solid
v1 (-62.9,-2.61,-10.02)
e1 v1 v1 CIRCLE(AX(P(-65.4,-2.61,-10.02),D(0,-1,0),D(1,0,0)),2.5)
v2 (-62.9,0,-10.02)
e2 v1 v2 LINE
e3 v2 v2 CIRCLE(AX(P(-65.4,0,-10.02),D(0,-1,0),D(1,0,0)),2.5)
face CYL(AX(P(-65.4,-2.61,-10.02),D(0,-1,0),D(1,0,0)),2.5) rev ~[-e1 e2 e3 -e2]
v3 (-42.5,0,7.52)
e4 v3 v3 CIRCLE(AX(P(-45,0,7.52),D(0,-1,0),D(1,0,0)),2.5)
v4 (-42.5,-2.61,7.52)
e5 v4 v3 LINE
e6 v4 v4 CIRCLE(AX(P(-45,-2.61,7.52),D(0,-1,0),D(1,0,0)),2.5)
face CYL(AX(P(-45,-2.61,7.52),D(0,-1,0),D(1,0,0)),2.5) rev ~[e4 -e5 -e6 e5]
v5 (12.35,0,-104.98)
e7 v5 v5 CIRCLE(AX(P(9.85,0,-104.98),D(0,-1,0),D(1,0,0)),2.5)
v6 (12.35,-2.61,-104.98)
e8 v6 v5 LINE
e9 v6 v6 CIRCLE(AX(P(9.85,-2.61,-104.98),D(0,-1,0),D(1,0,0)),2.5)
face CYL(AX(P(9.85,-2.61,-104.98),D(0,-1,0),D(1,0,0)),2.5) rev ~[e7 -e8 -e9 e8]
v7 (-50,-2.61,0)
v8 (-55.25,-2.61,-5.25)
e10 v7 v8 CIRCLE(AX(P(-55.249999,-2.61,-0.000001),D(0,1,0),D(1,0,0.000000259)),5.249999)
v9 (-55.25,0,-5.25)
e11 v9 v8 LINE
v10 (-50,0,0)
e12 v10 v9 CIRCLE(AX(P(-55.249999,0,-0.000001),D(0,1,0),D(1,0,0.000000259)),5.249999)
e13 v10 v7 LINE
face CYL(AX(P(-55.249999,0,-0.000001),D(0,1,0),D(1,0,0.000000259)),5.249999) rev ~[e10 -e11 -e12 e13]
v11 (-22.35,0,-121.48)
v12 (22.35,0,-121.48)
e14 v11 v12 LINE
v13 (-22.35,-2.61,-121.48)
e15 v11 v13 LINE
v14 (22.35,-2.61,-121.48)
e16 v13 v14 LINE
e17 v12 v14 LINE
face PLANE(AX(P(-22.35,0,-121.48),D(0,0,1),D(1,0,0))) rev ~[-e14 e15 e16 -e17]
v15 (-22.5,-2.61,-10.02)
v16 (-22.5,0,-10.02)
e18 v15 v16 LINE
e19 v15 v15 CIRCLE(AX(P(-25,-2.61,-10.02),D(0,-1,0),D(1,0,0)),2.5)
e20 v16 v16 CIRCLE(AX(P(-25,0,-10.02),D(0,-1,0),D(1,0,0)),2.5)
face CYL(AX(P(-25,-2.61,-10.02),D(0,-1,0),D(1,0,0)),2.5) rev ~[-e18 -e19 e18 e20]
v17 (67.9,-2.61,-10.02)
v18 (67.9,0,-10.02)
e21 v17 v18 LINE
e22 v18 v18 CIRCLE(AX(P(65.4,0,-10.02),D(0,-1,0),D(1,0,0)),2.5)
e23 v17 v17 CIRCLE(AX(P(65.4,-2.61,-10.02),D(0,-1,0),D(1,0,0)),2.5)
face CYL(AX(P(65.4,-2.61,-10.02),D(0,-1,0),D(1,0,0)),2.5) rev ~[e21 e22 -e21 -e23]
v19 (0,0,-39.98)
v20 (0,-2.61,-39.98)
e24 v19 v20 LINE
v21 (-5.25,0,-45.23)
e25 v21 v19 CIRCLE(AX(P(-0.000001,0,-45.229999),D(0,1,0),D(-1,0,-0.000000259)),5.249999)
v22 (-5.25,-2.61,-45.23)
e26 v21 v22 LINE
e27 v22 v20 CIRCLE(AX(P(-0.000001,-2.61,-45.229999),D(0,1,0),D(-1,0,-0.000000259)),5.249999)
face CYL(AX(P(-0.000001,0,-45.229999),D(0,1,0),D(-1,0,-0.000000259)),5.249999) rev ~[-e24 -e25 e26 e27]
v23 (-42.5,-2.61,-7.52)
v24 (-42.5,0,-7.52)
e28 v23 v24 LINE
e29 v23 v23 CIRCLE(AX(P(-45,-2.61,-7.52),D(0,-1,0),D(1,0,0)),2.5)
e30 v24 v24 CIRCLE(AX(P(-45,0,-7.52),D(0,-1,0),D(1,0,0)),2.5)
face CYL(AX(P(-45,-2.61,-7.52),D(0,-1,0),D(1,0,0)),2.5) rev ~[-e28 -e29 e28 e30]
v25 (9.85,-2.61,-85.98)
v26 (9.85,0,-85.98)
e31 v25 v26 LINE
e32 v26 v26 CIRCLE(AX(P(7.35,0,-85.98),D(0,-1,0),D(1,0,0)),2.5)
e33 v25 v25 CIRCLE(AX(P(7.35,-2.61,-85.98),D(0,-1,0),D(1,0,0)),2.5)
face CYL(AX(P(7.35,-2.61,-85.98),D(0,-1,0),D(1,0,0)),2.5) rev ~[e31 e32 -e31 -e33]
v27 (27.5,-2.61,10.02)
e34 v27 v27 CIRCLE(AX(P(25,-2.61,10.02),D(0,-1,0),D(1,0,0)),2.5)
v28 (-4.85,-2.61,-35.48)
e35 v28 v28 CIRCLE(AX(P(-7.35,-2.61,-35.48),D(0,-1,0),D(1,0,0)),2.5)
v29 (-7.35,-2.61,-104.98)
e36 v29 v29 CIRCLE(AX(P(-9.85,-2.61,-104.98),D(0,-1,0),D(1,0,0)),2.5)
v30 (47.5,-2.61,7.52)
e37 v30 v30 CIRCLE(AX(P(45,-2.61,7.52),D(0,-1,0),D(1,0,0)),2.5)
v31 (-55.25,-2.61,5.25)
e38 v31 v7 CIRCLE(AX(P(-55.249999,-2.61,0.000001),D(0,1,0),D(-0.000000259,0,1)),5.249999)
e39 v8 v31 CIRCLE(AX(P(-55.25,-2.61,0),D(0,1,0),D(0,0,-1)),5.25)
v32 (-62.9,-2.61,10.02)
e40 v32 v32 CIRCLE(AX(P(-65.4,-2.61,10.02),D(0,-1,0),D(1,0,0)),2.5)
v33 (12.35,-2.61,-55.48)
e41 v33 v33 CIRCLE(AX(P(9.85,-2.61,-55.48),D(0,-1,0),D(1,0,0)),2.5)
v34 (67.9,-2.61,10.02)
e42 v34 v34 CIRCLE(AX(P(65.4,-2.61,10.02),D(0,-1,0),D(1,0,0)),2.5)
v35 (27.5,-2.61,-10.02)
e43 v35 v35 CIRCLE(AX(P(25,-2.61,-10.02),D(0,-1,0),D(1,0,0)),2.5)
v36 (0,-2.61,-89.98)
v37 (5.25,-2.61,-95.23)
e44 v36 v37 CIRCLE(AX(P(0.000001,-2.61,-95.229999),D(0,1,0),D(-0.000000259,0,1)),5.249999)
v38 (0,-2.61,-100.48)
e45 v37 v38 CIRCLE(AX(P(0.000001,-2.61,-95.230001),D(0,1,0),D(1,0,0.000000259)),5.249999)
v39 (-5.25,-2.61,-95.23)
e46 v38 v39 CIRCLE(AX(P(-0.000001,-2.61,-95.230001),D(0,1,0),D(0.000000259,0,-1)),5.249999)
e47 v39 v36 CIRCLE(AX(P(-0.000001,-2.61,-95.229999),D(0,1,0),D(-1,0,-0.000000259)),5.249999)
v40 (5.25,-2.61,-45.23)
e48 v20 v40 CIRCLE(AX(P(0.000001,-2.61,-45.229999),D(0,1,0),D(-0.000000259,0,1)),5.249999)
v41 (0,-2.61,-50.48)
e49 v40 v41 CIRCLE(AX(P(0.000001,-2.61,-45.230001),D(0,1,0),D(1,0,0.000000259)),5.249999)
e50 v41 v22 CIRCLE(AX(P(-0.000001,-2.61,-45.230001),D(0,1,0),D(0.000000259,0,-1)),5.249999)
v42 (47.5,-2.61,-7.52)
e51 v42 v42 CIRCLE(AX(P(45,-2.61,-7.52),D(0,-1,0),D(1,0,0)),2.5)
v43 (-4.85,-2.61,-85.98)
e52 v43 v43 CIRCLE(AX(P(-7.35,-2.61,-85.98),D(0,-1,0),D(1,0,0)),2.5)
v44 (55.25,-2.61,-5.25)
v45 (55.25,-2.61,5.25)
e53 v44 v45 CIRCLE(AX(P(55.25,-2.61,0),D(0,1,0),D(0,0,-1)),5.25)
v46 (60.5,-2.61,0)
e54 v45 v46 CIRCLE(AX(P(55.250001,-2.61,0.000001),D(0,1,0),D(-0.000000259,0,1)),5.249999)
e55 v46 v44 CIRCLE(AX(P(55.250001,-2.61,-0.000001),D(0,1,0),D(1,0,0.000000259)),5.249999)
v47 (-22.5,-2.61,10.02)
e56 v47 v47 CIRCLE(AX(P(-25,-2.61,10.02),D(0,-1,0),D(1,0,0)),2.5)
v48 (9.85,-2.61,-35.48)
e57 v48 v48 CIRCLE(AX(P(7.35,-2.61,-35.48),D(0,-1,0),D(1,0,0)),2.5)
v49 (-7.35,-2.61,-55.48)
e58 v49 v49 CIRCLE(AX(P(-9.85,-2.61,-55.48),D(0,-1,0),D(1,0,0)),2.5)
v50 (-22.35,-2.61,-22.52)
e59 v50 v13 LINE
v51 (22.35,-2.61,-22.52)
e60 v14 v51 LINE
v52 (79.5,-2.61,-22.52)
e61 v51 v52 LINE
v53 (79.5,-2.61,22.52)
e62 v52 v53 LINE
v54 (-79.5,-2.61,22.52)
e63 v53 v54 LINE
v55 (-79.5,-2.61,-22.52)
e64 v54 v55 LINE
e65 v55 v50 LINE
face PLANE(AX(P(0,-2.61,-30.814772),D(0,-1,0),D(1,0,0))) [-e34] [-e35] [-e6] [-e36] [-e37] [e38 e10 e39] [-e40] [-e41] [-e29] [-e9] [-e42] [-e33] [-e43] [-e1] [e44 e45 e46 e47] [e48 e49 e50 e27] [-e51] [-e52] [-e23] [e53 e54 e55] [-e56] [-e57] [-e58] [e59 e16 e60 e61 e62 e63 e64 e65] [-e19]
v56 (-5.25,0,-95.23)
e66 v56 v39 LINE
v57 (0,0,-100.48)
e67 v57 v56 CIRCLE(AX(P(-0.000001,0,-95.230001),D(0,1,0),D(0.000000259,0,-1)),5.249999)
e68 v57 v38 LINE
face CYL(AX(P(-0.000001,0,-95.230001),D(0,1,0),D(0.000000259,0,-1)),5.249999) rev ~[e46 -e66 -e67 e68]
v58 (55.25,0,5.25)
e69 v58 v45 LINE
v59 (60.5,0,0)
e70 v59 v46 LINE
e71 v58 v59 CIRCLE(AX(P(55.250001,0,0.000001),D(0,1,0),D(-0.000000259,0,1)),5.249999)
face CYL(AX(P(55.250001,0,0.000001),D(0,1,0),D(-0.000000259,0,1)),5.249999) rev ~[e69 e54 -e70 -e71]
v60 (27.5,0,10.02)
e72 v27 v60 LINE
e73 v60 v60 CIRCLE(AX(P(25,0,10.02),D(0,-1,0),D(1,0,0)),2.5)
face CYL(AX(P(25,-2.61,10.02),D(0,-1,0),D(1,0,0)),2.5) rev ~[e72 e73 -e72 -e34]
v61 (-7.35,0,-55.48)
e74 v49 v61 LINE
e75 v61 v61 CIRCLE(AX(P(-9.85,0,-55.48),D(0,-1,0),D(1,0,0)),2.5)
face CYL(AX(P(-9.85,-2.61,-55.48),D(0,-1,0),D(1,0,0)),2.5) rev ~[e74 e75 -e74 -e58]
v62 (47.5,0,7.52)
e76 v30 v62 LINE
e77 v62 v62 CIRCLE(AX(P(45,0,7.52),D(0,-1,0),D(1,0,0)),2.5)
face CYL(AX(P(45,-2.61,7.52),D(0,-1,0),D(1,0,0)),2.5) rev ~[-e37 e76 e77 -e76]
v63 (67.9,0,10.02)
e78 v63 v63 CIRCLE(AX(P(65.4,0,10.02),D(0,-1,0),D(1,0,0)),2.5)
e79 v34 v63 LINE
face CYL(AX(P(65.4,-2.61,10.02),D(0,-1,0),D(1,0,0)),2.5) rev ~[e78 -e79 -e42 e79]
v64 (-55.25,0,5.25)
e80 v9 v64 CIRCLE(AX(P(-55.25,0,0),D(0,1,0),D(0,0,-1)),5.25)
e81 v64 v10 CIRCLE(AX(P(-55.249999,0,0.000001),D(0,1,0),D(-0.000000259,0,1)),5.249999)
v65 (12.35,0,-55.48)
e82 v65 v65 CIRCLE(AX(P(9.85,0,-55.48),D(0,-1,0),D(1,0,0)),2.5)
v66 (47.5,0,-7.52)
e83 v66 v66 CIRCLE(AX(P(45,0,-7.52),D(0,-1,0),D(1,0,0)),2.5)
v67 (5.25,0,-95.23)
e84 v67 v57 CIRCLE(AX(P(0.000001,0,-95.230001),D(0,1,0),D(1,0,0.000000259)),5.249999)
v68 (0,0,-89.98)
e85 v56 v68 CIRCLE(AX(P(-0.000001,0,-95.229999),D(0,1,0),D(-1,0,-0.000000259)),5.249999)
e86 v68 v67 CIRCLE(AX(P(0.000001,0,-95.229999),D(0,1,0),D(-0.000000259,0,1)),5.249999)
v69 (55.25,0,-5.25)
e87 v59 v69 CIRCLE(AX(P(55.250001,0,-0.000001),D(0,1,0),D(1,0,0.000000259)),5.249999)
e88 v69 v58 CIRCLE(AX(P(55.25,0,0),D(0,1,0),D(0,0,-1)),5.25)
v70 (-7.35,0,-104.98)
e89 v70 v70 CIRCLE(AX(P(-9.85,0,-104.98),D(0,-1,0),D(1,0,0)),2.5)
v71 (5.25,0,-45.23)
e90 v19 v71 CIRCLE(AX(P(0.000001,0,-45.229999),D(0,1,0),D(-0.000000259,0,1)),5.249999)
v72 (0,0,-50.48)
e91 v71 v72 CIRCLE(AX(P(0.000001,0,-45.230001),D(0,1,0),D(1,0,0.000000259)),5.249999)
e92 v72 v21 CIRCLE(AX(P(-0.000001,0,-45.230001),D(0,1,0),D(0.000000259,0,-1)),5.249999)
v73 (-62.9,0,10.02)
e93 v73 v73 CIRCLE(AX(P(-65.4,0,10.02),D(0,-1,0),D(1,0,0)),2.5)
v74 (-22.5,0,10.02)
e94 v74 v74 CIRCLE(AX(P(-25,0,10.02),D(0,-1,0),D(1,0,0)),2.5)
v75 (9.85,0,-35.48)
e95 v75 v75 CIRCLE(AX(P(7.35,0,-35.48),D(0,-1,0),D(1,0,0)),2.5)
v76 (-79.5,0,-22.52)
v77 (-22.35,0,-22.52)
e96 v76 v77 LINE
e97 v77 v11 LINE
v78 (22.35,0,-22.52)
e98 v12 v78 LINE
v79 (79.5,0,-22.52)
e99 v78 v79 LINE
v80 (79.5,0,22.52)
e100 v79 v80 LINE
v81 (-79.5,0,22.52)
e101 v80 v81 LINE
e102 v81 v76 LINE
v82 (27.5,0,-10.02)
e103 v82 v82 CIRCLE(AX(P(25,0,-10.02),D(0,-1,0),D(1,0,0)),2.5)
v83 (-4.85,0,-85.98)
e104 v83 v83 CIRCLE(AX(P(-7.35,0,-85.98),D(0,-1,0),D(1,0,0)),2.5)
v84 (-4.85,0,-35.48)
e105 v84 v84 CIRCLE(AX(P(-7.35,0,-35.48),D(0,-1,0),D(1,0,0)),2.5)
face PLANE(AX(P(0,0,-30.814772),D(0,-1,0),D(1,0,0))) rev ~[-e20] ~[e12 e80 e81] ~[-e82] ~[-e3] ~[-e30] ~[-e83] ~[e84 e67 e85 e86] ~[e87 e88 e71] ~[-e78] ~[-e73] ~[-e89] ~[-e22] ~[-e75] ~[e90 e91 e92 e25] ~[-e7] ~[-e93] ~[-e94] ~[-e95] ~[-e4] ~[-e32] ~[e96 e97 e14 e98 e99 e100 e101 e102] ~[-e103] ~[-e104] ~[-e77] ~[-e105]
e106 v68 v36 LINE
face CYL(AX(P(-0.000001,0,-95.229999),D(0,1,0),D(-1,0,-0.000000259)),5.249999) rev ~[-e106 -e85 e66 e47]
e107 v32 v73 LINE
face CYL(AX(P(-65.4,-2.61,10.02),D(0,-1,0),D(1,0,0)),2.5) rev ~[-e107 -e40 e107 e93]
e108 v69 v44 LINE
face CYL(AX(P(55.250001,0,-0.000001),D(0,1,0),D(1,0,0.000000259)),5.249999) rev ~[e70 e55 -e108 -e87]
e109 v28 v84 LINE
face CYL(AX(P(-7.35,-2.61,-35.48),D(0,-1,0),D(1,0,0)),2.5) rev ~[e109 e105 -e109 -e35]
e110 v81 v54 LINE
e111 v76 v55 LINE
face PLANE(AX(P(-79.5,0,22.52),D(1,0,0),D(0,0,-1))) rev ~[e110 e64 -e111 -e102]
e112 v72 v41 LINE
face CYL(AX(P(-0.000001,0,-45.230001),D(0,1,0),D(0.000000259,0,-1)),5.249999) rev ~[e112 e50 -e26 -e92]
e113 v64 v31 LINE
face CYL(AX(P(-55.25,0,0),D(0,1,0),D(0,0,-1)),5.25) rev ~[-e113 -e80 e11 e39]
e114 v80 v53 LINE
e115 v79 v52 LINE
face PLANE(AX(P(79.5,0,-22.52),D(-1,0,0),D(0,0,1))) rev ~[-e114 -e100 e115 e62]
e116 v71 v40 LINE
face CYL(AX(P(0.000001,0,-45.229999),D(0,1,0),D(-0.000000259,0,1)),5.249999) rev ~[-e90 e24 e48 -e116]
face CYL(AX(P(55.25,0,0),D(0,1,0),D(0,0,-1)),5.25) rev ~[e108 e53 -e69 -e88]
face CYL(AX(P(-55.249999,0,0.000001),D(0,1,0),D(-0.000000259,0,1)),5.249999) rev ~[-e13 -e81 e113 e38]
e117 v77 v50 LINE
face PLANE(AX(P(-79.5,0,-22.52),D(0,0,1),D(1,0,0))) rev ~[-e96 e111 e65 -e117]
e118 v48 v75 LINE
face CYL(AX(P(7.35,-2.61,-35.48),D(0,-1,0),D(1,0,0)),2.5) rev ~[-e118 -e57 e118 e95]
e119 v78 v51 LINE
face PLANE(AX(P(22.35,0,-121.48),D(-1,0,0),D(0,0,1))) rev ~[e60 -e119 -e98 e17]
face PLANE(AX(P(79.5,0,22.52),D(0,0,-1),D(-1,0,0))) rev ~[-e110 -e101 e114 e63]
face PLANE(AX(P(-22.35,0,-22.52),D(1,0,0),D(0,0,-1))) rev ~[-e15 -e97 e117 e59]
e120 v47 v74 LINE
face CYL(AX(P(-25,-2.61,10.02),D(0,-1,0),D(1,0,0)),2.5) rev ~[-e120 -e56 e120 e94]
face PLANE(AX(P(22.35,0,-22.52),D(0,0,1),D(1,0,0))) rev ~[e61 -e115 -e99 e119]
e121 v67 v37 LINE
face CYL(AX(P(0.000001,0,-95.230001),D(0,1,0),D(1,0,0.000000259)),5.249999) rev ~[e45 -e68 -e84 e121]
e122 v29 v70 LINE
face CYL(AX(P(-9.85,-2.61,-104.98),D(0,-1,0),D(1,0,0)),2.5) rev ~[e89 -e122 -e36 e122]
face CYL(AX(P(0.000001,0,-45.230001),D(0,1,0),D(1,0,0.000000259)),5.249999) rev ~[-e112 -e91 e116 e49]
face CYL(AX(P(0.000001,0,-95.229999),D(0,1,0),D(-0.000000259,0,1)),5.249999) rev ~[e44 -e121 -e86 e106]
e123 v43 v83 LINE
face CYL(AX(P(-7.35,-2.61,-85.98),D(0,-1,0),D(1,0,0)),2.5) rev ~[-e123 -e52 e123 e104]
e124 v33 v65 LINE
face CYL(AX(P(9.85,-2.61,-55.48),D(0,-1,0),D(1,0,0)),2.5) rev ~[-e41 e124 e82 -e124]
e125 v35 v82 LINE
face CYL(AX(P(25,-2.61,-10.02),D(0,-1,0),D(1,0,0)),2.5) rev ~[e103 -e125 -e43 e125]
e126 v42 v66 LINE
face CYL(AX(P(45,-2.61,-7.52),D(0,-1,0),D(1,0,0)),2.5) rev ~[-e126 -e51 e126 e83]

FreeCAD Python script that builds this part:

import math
import FreeCAD as App
import Part
import Sketcher

V = App.Vector
Q = App.Units.Quantity


def add_polygon(sketch, points):
    """Adds a closed chain of lines whose ends are joined by coincident constraints."""
    first, n = sketch.GeometryCount, len(points)
    for a, b in zip(points, points[1:] + points[:1]):
        sketch.addGeometry(Part.LineSegment(App.Vector(*a, 0), App.Vector(*b, 0)), False)
    for i in range(n):
        sketch.addConstraint(Sketcher.Constraint("Coincident", first + i, 2, first + (i + 1) % n, 1))

doc = App.newDocument("Part")
body = doc.addObject("PartDesign::Body", "Body")

sketch1 = body.newObject("Sketcher::SketchObject", "Sketch")
sketch1.AttachmentSupport = (doc.getObject("XZ_Plane"), [""])
sketch1.MapMode = "FlatFace"
add_polygon(sketch1, [(80, -23), (80, 23), (-80, 23), (-80, -23), (-22, -23), (-22, -121), (22, -121), (22, -23)])
sketch1.addGeometry(Part.ArcOfCircle(Part.Circle(V(0, -95, 0), V(0, 0, 1), 5), math.radians(90), math.radians(180)), False)
sketch1.addGeometry(Part.ArcOfCircle(Part.Circle(V(0, -95, 0), V(0, 0, 1), 5), math.radians(0), math.radians(90)), False)
sketch1.addGeometry(Part.ArcOfCircle(Part.Circle(V(0, -95, 0), V(0, 0, 1), 5), math.radians(-90), math.radians(0)), False)
sketch1.addGeometry(Part.ArcOfCircle(Part.Circle(V(0, -95, 0), V(0, 0, 1), 5), math.radians(180), math.radians(270)), False)
sketch1.addGeometry(Part.ArcOfCircle(Part.Circle(V(0, -45, 0), V(0, 0, 1), 5), math.radians(180), math.radians(270)), False)
sketch1.addGeometry(Part.ArcOfCircle(Part.Circle(V(0, -45, 0), V(0, 0, 1), 5), math.radians(90), math.radians(180)), False)
sketch1.addGeometry(Part.ArcOfCircle(Part.Circle(V(0, -45, 0), V(0, 0, 1), 5), math.radians(0), math.radians(90)), False)
sketch1.addGeometry(Part.ArcOfCircle(Part.Circle(V(0, -45, 0), V(0, 0, 1), 5), math.radians(-90), math.radians(0)), False)
sketch1.addGeometry(Part.ArcOfCircle(Part.Circle(V(-55, 0, 0), V(0, 0, 1), 5), math.radians(90), math.radians(270)), False)
sketch1.addGeometry(Part.ArcOfCircle(Part.Circle(V(-55, 0, 0), V(0, 0, 1), 5), math.radians(0), math.radians(90)), False)
sketch1.addGeometry(Part.ArcOfCircle(Part.Circle(V(-55, 0, 0), V(0, 0, 1), 5), math.radians(-90), math.radians(0)), False)
sketch1.addGeometry(Part.ArcOfCircle(Part.Circle(V(55, 0, 0), V(0, 0, 1), 5), math.radians(90), math.radians(270)), False)
sketch1.addGeometry(Part.ArcOfCircle(Part.Circle(V(55, 0, 0), V(0, 0, 1), 5), math.radians(0), math.radians(90)), False)
sketch1.addGeometry(Part.ArcOfCircle(Part.Circle(V(55, 0, 0), V(0, 0, 1), 5), math.radians(-90), math.radians(0)), False)
sketch1.addConstraint([
    Sketcher.Constraint("Tangent", 8, 1, 9, 2),
    Sketcher.Constraint("Tangent", 9, 1, 10, 2),
    Sketcher.Constraint("Tangent", 10, 1, 11, 2),
    Sketcher.Constraint("Tangent", 11, 1, 8, 2),
    Sketcher.Constraint("Tangent", 12, 1, 13, 2),
    Sketcher.Constraint("Tangent", 13, 1, 14, 2),
    Sketcher.Constraint("Tangent", 14, 1, 15, 2),
    Sketcher.Constraint("Tangent", 15, 1, 12, 2),
    Sketcher.Constraint("Tangent", 16, 1, 17, 2),
    Sketcher.Constraint("Tangent", 17, 1, 18, 2),
    Sketcher.Constraint("Tangent", 18, 1, 16, 2),
    Sketcher.Constraint("Tangent", 19, 1, 20, 2),
    Sketcher.Constraint("Tangent", 20, 1, 21, 2),
    Sketcher.Constraint("Tangent", 21, 1, 19, 2),
    Sketcher.Constraint("Vertical", 0),
    Sketcher.Constraint("Horizontal", 1),
    Sketcher.Constraint("Vertical", 2),
    Sketcher.Constraint("Horizontal", 3),
    Sketcher.Constraint("Vertical", 4),
    Sketcher.Constraint("Horizontal", 5),
    Sketcher.Constraint("Vertical", 6),
    Sketcher.Constraint("Horizontal", 7),
    Sketcher.Constraint("Equal", 8, 9),
    Sketcher.Constraint("Equal", 11, 12),
    Sketcher.Constraint("Equal", 12, 13),
    Sketcher.Constraint("Equal", 15, 16),
    Sketcher.Constraint("Equal", 18, 19),
    Sketcher.Constraint("Symmetric", 16, 3, 19, 3, -1, 1),
    Sketcher.Constraint("Symmetric", 0, 2, 2, 2, -1, 1),
    Sketcher.Constraint("Symmetric", 3, 2, 6, 2, -2),
    Sketcher.Constraint("Symmetric", 9, 1, 11, 1, -2),
    Sketcher.Constraint("Symmetric", 12, 1, 14, 1, -2),
    Sketcher.Constraint("Symmetric", 16, 1, 19, 1, -2),
    Sketcher.Constraint("PointOnObject", 8, 1, -2),
    Sketcher.Constraint("PointOnObject", 10, 1, -2),
    Sketcher.Constraint("PointOnObject", 13, 1, -2),
    Sketcher.Constraint("PointOnObject", 15, 1, -2),
    Sketcher.Constraint("PointOnObject", 17, 1, -1),
    Sketcher.Constraint("PointOnObject", 20, 1, -1),
    Sketcher.Constraint("Horizontal", 11, 3, 9, 1),
    Sketcher.Constraint("Horizontal", 15, 3, 12, 1),
    Sketcher.Constraint("Vertical", 18, 3, 16, 1),
    Sketcher.Constraint("Vertical", 16, 1, 18, 1),
    Sketcher.Constraint("Vertical", 19, 1, 21, 1),
    Sketcher.Constraint("DistanceX", 1, 2, 1, 1, Q("159 mm")),
    Sketcher.Constraint("Radius", 8, Q("5.249999 mm")),
    Sketcher.Constraint("DistanceX", 5, 1, 5, 2, Q("44.7 mm")),
    Sketcher.Constraint("DistanceX", 17, 1, -1, 1, Q("50 mm")),
    Sketcher.Constraint("DistanceY", 11, 3, 12, 3, Q("50 mm")),
    Sketcher.Constraint("DistanceY", 0, 1, 0, 2, Q("45.04 mm")),
    Sketcher.Constraint("DistanceY", 4, 2, 4, 1, Q("98.96 mm")),
    Sketcher.Constraint("DistanceY", 4, 2, 8, 1, Q("31.5 mm")),
])
pad1 = body.newObject("PartDesign::Pad", "Pad")
pad1.Profile = sketch1
pad1.Length = 2.61

sketch2 = body.newObject("Sketcher::SketchObject", "Sketch001")
sketch2.AttachmentSupport = (doc.getObject("XZ_Plane"), [""])
sketch2.MapMode = "FlatFace"
sketch2.AttachmentOffset = App.Placement(V(0, 0, 2.61), App.Rotation())
sketch2.addGeometry([
    Part.Circle(V(65.4, 10, 0), V(0, 0, 1), 2.5),
    Part.Circle(V(65.4, -10, 0), V(0, 0, 1), 2.5),
    Part.Circle(V(45, 7.5, 0), V(0, 0, 1), 2.5),
    Part.Circle(V(45, -7.5, 0), V(0, 0, 1), 2.5),
    Part.Circle(V(25, 10, 0), V(0, 0, 1), 2.5),
    Part.Circle(V(25, -10, 0), V(0, 0, 1), 2.5),
    Part.Circle(V(-25, 10, 0), V(0, 0, 1), 2.5),
    Part.Circle(V(-25, -10, 0), V(0, 0, 1), 2.5),
    Part.Circle(V(-45, 7.5, 0), V(0, 0, 1), 2.5),
    Part.Circle(V(-45, -7.5, 0), V(0, 0, 1), 2.5),
    Part.Circle(V(-65.4, -10, 0), V(0, 0, 1), 2.5),
    Part.Circle(V(-65.4, 10, 0), V(0, 0, 1), 2.5),
    Part.Circle(V(9.8, -55.5, 0), V(0, 0, 1), 2.5),
    Part.Circle(V(-9.8, -55.5, 0), V(0, 0, 1), 2.5),
    Part.Circle(V(-9.8, -105, 0), V(0, 0, 1), 2.5),
    Part.Circle(V(9.8, -105, 0), V(0, 0, 1), 2.5),
    Part.Circle(V(-7.3, -35.5, 0), V(0, 0, 1), 2.5),
    Part.Circle(V(7.3, -35.5, 0), V(0, 0, 1), 2.5),
    Part.Circle(V(7.3, -86, 0), V(0, 0, 1), 2.5),
    Part.Circle(V(-7.3, -86, 0), V(0, 0, 1), 2.5),
], False)
sketch2.addConstraint([
    Sketcher.Constraint("Equal", 0, 1),
    Sketcher.Constraint("Equal", 1, 2),
    Sketcher.Constraint("Equal", 2, 3),
    Sketcher.Constraint("Equal", 3, 4),
    Sketcher.Constraint("Equal", 4, 5),
    Sketcher.Constraint("Equal", 5, 6),
    Sketcher.Constraint("Equal", 6, 7),
    Sketcher.Constraint("Equal", 7, 8),
    Sketcher.Constraint("Equal", 8, 9),
    Sketcher.Constraint("Equal", 9, 10),
    Sketcher.Constraint("Equal", 10, 11),
    Sketcher.Constraint("Equal", 11, 12),
    Sketcher.Constraint("Equal", 12, 13),
    Sketcher.Constraint("Equal", 13, 14),
    Sketcher.Constraint("Equal", 14, 15),
    Sketcher.Constraint("Equal", 15, 16),
    Sketcher.Constraint("Equal", 16, 17),
    Sketcher.Constraint("Equal", 17, 18),
    Sketcher.Constraint("Equal", 18, 19),
    Sketcher.Constraint("Symmetric", 5, 3, 6, 3, -1, 1),
    Sketcher.Constraint("Symmetric", 4, 3, 7, 3, -1, 1),
    Sketcher.Constraint("Symmetric", 3, 3, 8, 3, -1, 1),
    Sketcher.Constraint("Symmetric", 2, 3, 9, 3, -1, 1),
    Sketcher.Constraint("Symmetric", 0, 3, 10, 3, -1, 1),
    Sketcher.Constraint("Symmetric", 1, 3, 11, 3, -1, 1),
    Sketcher.Constraint("Symmetric", 4, 3, 6, 3, -2),
    Sketcher.Constraint("Symmetric", 2, 3, 8, 3, -2),
    Sketcher.Constraint("Symmetric", 1, 3, 10, 3, -2),
    Sketcher.Constraint("Symmetric", 12, 3, 13, 3, -2),
    Sketcher.Constraint("Symmetric", 14, 3, 15, 3, -2),
    Sketcher.Constraint("Symmetric", 16, 3, 17, 3, -2),
    Sketcher.Constraint("Symmetric", 18, 3, 19, 3, -2),
    Sketcher.Constraint("Horizontal", 0, 3, 4, 3),
    Sketcher.Constraint("Vertical", 13, 3, 14, 3),
    Sketcher.Constraint("Vertical", 17, 3, 18, 3),
    Sketcher.Constraint("Diameter", 0, Q("5 mm")),
    Sketcher.Constraint("DistanceX", -1, 1, 2, 3, Q("45 mm")),
    Sketcher.Constraint("DistanceX", -1, 1, 4, 3, Q("25 mm")),
    Sketcher.Constraint("DistanceY", 13, 3, 16, 3, Q("20 mm")),
    Sketcher.Constraint("DistanceY", 15, 3, 18, 3, Q("19 mm")),
    Sketcher.Constraint("DistanceX", -1, 1, 0, 3, Q("65.4 mm")),
    Sketcher.Constraint("DistanceY", 2, 3, 0, 3, Q("2.5 mm")),
    Sketcher.Constraint("DistanceY", 12, 3, 4, 3, Q("65.5 mm")),
    Sketcher.Constraint("DistanceX", 13, 3, 12, 3, Q("19.7 mm")),
    Sketcher.Constraint("DistanceY", 14, 3, 13, 3, Q("49.5 mm")),
    Sketcher.Constraint("DistanceX", 13, 3, 16, 3, Q("2.5 mm")),
    Sketcher.Constraint("DistanceY", -1, 1, 0, 3, Q("10.02 mm")),
])
pocket1 = body.newObject("PartDesign::Pocket", "Pocket")
pocket1.Profile = sketch2
pocket1.Type = "ThroughAll"

doc.recompute()
